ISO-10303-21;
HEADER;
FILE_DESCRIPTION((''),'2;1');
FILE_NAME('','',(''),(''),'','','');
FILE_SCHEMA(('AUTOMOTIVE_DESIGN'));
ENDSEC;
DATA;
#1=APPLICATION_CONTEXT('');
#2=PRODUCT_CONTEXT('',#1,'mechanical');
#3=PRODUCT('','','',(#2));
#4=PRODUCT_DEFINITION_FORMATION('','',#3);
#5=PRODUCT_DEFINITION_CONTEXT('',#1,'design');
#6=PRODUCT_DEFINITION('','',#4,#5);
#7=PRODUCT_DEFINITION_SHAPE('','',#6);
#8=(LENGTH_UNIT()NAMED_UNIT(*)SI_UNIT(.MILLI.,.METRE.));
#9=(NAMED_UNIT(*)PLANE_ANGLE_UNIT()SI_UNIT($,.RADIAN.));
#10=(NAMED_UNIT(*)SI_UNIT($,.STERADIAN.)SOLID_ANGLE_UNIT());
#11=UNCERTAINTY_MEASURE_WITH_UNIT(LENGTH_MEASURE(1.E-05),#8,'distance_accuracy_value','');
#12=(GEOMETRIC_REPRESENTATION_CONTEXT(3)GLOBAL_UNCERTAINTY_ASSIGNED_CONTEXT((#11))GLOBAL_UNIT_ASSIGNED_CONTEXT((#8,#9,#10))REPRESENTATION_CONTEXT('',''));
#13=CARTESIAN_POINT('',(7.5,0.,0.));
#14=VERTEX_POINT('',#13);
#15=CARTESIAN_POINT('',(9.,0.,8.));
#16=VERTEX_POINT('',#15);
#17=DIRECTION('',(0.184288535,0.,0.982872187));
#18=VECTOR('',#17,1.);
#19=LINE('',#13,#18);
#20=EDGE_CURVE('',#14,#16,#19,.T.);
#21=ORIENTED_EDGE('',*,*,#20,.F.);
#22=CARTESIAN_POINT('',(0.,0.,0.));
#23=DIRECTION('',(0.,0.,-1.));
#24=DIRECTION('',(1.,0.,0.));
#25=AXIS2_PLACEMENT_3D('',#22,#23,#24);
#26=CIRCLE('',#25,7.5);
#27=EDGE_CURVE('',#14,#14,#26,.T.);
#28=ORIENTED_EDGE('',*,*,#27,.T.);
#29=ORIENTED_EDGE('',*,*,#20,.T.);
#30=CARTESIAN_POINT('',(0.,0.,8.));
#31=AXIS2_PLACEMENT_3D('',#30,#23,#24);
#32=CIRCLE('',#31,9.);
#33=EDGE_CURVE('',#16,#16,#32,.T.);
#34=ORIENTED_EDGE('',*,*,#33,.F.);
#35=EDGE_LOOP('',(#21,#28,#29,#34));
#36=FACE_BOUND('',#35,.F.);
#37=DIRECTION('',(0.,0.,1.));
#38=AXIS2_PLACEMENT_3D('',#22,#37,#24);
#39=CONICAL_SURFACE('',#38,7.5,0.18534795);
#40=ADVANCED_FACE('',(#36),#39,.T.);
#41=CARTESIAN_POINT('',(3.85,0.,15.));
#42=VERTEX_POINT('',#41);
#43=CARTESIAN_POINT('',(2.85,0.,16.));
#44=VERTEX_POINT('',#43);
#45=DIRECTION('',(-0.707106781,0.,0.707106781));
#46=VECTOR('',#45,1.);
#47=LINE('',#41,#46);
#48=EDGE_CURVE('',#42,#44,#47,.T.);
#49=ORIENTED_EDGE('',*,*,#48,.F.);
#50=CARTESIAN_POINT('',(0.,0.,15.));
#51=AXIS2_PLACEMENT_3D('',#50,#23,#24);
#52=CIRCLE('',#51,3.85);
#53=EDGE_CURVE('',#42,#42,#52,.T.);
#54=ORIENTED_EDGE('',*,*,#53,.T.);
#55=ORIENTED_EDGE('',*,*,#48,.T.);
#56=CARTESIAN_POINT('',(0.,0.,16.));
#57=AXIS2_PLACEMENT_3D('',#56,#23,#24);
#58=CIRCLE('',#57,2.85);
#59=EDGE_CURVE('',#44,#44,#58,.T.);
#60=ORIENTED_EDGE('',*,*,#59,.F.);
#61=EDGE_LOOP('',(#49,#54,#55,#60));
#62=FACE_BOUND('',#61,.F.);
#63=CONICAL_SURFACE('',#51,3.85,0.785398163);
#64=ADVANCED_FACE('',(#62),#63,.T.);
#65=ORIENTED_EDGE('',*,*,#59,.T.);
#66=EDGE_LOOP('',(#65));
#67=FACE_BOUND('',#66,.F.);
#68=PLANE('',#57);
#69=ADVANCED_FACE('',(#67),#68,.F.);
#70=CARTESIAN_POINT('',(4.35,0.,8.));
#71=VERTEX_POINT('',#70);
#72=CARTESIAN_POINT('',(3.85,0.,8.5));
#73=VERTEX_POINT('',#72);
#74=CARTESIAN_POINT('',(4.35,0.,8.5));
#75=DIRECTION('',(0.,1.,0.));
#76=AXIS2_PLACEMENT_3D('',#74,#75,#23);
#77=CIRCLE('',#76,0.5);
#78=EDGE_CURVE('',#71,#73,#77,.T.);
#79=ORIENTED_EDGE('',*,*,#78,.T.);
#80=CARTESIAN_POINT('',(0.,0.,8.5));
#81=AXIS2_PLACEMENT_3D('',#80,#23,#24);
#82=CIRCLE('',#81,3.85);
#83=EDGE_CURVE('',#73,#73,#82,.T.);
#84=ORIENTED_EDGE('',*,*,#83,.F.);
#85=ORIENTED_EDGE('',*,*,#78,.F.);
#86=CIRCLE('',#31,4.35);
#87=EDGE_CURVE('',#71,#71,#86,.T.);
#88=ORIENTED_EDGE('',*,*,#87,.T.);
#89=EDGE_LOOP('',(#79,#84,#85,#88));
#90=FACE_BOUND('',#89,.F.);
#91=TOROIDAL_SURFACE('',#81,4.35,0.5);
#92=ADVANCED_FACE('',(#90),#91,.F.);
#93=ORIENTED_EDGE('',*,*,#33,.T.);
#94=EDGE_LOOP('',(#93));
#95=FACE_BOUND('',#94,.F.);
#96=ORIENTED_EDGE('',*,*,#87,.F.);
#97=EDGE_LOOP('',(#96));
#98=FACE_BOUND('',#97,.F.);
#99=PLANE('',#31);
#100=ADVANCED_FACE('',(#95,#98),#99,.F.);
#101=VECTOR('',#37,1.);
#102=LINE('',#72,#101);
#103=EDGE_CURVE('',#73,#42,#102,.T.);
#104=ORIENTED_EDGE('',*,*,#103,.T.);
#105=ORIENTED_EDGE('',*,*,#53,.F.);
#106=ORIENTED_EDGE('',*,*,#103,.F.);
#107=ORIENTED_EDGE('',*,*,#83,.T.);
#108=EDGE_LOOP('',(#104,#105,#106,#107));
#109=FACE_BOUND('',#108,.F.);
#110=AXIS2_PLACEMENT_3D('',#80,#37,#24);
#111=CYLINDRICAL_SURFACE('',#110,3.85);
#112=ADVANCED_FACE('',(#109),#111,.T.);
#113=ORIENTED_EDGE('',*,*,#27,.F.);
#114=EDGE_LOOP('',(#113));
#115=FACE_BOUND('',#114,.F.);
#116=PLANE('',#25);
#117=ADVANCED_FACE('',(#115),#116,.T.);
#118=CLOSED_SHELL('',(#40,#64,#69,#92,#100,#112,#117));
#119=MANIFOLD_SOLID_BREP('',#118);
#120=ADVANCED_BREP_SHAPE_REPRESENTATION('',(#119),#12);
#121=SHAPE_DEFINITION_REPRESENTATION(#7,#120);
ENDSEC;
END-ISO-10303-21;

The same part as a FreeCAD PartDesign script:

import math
import FreeCAD as App
import Part
import Sketcher
from FreeCAD import Vector


def edges_at(feature, points):
    """Names of the edges that pass closest to the given points."""
    edges = feature.Shape.Edges
    near = lambda p: min(range(len(edges)), key=lambda i: edges[i].distToShape(Part.Vertex(*p))[0])
    return sorted({f"Edge{near(p) + 1}" for p in points})

doc = App.newDocument("Part")
body = doc.addObject("PartDesign::Body", "Body")

# Sketch on XZ plane
sketch1 = doc.addObject("Sketcher::SketchObject", "Sketch")
body.addObject(sketch1)
sketch1.AttachmentSupport = (doc.XZ_Plane, [""])
sketch1.MapMode = "FlatFace"
sketch1.addGeometry([
    Part.LineSegment(Vector(7.5, 0, 0), Vector(0, 0, 0)),  # 0
    Part.LineSegment(Vector(0, 0, 0), Vector(0, 16, 0)),  # 1
    Part.LineSegment(Vector(0, 16, 0), Vector(3.9, 16, 0)),  # 2
    Part.LineSegment(Vector(3.9, 16, 0), Vector(3.9, 8.5, 0)),  # 3
    Part.ArcOfCircle(Part.Circle(Vector(4.3, 8.5, 0), Vector(0, 0, 1), 0.5), math.radians(180), math.radians(270)),  # 4
    Part.LineSegment(Vector(4.3, 8, 0), Vector(9, 8, 0)),  # 5
    Part.LineSegment(Vector(9, 8, 0), Vector(7.5, 0, 0)),  # 6
], False)
sketch1.addConstraint([
    Sketcher.Constraint("Coincident", 0, 2, 1, 1),
    Sketcher.Constraint("Coincident", 1, 2, 2, 1),
    Sketcher.Constraint("Coincident", 2, 2, 3, 1),
    Sketcher.Constraint("Tangent", 3, 2, 4, 1),
    Sketcher.Constraint("Tangent", 4, 2, 5, 1),
    Sketcher.Constraint("Coincident", 5, 2, 6, 1),
    Sketcher.Constraint("Coincident", 6, 2, 0, 1),
    Sketcher.Constraint("Horizontal", 0),
    Sketcher.Constraint("Vertical", 1),
    Sketcher.Constraint("Horizontal", 2),
    Sketcher.Constraint("Vertical", 3),
    Sketcher.Constraint("Horizontal", 5),
    Sketcher.Constraint("Coincident", 0, 2, -1, 1),
    Sketcher.Constraint("Equal", 0, 3),
    Sketcher.Constraint("Radius", 4, 0.5),
    Sketcher.Constraint("DistanceX", 0, 2, 0, 1, 7.5),
    Sketcher.Constraint("DistanceY", -1, 1, 4, 2, 8.0),
    Sketcher.Constraint("DistanceX", 2, 1, 2, 2, 3.85),
    Sketcher.Constraint("DistanceX", -1, 1, 5, 2, 9.0),
])
revolution = doc.addObject("PartDesign::Revolution", "Revolution")
body.addObject(revolution)
revolution.Profile = sketch1
revolution.ReferenceAxis = (sketch1, ["V_Axis"])
revolution.Angle = 360
doc.recompute()

chamfer = doc.addObject("PartDesign::Chamfer", "Chamfer")
body.addObject(chamfer)
chamfer.Base = (revolution, edges_at(revolution, [(-3.59, -1.392, 16)]))
chamfer.Size = 1

doc.recompute()
